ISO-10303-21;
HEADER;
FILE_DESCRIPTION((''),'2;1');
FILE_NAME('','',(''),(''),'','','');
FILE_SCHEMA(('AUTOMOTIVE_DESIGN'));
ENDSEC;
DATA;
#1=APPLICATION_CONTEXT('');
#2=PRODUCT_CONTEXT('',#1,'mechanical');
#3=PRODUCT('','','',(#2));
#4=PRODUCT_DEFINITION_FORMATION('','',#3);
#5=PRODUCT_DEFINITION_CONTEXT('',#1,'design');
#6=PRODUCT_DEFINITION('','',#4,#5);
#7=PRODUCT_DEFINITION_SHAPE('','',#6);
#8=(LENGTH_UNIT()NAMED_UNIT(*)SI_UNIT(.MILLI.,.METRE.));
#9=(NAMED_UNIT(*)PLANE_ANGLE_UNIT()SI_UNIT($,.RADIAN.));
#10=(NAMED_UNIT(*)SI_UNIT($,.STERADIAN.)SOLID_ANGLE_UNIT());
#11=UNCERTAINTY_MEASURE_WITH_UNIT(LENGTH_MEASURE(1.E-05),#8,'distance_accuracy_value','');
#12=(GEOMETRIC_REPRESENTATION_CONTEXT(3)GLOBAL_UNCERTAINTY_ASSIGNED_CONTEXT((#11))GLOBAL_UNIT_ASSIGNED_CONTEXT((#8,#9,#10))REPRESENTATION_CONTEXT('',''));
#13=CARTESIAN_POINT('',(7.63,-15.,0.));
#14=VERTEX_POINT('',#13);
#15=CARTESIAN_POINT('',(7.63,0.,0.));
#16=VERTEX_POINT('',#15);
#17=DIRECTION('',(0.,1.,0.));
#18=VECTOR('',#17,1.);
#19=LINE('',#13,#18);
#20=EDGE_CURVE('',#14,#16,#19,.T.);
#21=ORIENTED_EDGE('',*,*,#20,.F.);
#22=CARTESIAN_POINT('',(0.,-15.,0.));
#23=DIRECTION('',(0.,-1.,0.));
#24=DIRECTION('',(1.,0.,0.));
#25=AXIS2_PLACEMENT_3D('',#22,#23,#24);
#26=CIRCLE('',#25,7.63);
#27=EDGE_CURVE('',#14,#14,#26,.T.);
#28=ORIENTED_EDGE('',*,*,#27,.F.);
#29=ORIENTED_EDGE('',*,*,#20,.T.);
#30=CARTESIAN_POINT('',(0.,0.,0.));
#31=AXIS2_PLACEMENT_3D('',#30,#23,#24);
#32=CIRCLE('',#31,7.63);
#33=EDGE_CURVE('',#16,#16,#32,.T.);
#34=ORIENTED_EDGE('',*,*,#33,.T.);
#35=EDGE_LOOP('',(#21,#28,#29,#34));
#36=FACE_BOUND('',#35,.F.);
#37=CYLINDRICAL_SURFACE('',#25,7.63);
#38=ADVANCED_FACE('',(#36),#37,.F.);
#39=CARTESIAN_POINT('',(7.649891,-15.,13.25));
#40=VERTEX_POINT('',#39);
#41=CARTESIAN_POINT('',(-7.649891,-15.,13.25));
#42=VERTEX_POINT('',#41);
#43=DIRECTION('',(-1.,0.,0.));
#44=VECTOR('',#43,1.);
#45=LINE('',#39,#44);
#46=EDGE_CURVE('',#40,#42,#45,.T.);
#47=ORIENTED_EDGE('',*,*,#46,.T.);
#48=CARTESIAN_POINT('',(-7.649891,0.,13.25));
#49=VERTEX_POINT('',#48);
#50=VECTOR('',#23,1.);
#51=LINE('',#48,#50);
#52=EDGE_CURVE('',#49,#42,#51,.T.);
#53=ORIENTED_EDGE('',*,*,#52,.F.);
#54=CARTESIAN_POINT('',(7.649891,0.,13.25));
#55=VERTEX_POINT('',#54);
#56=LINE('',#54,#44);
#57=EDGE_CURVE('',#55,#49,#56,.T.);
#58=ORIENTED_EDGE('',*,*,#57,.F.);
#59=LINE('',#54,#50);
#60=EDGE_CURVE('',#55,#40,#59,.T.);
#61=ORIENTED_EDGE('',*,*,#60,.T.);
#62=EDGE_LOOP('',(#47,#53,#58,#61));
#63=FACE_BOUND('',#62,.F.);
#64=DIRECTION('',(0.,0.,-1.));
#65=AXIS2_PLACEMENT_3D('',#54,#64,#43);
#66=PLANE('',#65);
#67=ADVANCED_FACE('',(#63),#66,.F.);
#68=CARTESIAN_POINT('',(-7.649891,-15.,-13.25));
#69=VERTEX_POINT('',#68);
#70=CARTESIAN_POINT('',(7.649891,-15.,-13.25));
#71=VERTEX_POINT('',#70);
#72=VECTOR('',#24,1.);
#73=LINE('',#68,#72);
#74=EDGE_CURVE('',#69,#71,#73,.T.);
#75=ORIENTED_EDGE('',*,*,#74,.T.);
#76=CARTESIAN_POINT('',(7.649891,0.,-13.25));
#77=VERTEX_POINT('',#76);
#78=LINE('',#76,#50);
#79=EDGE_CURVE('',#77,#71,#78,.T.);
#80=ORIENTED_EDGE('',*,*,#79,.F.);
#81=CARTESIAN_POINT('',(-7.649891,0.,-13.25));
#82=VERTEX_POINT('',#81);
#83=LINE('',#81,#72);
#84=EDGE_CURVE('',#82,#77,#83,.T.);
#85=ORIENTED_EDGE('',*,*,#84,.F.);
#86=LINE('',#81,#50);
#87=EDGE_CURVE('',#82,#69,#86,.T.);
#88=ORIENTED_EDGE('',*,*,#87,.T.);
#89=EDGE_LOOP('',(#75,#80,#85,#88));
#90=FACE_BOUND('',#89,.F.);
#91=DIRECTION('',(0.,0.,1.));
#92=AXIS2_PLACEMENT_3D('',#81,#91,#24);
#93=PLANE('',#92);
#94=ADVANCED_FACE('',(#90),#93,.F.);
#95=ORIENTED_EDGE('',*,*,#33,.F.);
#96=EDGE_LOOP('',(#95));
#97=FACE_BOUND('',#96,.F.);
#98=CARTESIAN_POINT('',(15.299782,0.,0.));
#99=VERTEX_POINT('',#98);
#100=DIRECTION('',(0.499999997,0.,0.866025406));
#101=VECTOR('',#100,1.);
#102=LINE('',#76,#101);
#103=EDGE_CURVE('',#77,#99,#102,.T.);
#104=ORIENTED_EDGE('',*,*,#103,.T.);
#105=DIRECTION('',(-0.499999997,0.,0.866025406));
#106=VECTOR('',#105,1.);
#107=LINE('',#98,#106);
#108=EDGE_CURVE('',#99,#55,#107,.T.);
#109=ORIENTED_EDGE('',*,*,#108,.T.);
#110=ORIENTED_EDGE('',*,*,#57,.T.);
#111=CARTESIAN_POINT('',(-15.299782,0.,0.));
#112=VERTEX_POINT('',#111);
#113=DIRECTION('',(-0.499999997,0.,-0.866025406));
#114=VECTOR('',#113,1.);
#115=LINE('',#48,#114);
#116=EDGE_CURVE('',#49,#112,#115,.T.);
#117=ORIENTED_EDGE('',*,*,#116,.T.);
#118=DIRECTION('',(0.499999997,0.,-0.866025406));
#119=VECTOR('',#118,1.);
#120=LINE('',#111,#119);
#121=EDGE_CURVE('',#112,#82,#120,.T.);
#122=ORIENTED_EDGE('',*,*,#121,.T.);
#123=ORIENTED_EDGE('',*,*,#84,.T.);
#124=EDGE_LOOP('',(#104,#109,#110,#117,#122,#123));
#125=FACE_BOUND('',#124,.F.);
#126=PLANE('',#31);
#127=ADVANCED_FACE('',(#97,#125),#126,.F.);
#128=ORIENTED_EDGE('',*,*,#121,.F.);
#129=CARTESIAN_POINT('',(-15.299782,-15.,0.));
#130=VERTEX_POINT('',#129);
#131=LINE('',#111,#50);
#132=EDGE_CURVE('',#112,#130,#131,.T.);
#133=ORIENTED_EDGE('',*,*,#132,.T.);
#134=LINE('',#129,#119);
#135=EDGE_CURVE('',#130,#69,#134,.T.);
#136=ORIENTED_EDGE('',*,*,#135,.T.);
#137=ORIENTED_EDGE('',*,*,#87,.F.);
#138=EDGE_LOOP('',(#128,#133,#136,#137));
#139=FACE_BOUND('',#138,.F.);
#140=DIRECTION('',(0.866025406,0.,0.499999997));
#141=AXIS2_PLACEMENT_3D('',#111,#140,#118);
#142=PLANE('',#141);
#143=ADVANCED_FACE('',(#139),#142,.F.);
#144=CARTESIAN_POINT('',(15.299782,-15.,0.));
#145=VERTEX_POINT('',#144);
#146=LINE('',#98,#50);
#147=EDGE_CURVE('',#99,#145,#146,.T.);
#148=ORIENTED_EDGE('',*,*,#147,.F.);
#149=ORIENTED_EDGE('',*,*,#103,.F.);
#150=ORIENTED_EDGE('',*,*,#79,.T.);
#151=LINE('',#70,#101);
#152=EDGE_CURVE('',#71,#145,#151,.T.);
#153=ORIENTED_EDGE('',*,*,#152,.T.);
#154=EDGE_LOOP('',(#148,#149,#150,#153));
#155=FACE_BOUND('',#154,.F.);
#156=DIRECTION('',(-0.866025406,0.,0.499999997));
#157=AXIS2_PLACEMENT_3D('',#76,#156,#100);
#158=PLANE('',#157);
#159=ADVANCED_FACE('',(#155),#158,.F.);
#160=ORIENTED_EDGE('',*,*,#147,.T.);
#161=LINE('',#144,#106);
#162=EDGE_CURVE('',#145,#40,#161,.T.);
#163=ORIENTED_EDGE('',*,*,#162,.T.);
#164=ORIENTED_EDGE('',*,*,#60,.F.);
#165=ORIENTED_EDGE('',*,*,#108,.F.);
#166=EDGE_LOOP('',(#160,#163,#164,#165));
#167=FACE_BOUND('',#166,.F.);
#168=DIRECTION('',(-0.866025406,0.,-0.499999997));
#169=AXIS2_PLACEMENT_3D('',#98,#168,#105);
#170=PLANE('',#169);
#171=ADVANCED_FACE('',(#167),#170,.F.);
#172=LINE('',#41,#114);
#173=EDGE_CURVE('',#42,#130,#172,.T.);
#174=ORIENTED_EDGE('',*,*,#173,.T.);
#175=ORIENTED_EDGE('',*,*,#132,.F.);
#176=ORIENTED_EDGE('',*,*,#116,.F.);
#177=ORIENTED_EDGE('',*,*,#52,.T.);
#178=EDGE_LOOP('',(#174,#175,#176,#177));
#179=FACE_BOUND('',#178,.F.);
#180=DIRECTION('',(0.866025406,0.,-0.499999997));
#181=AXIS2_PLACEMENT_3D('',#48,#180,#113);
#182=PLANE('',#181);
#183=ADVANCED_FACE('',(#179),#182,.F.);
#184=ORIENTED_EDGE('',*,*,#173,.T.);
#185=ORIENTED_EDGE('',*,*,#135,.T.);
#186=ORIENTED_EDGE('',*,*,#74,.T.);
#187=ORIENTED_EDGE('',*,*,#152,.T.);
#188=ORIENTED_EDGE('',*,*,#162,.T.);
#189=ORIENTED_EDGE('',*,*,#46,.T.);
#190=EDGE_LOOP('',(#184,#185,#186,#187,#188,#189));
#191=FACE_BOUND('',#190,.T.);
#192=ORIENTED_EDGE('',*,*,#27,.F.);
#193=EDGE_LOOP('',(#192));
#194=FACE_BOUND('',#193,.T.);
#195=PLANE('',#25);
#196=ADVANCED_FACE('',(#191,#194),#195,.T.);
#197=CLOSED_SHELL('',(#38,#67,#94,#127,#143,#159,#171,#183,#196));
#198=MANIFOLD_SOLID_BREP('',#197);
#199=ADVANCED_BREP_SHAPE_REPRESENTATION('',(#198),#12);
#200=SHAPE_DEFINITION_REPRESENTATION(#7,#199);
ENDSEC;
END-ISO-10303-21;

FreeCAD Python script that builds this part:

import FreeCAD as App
import Part
import Sketcher

V = App.Vector
Q = App.Units.Quantity


def add_polygon(sketch, points):
    """Adds a closed chain of lines whose ends are joined by coincident constraints."""
    first, n = sketch.GeometryCount, len(points)
    for a, b in zip(points, points[1:] + points[:1]):
        sketch.addGeometry(Part.LineSegment(App.Vector(*a, 0), App.Vector(*b, 0)), False)
    for i in range(n):
        sketch.addConstraint(Sketcher.Constraint("Coincident", first + i, 2, first + (i + 1) % n, 1))

doc = App.newDocument("Part")
body = doc.addObject("PartDesign::Body", "Body")

sketch1 = body.newObject("Sketcher::SketchObject", "Sketch")
sketch1.AttachmentSupport = (doc.getObject("XZ_Plane"), [""])
sketch1.MapMode = "FlatFace"
add_polygon(sketch1, [(-7.649891, 13.25), (-15.299782, 0), (-7.649891, -13.25), (7.649891, -13.25), (15.299782, 0), (7.649891, 13.25)])
sketch1.addConstraint([
    Sketcher.Constraint("Horizontal", 2),
    Sketcher.Constraint("Horizontal", 5),
    Sketcher.Constraint("Symmetric", 0, 2, 3, 2, -1, 1),
    Sketcher.Constraint("Symmetric", 1, 2, 4, 2, -1, 1),
    Sketcher.Constraint("PointOnObject", 0, 2, -1),
    Sketcher.Constraint("Parallel", 0, 3),
    Sketcher.Constraint("Vertical", 2, 2, 4, 2),
    Sketcher.Constraint("Angle", 0, Q("-120 deg")),
    Sketcher.Constraint("DistanceY", 2, 2, 4, 2, 26.5),
    Sketcher.Constraint("DistanceX", 2, 1, 2, 2, 15.299782),
])
pad1 = body.newObject("PartDesign::Pad", "Pad")
pad1.Profile = sketch1
pad1.Length = 15

sketch2 = body.newObject("Sketcher::SketchObject", "Sketch001")
sketch2.AttachmentSupport = (doc.getObject("XZ_Plane"), [""])
sketch2.MapMode = "FlatFace"
sketch2.AttachmentOffset = App.Placement(V(0, 0, 15), App.Rotation())
sketch2.addGeometry(Part.Circle(V(0, 0, 0), V(0, 0, 1), 7.63), False)
sketch2.addConstraint([
    Sketcher.Constraint("Coincident", 0, 3, -1, 1),
    Sketcher.Constraint("Diameter", 0, 15.26),
])
pocket1 = body.newObject("PartDesign::Pocket", "Pocket")
pocket1.Profile = sketch2
pocket1.Type = "ThroughAll"

doc.recompute()
